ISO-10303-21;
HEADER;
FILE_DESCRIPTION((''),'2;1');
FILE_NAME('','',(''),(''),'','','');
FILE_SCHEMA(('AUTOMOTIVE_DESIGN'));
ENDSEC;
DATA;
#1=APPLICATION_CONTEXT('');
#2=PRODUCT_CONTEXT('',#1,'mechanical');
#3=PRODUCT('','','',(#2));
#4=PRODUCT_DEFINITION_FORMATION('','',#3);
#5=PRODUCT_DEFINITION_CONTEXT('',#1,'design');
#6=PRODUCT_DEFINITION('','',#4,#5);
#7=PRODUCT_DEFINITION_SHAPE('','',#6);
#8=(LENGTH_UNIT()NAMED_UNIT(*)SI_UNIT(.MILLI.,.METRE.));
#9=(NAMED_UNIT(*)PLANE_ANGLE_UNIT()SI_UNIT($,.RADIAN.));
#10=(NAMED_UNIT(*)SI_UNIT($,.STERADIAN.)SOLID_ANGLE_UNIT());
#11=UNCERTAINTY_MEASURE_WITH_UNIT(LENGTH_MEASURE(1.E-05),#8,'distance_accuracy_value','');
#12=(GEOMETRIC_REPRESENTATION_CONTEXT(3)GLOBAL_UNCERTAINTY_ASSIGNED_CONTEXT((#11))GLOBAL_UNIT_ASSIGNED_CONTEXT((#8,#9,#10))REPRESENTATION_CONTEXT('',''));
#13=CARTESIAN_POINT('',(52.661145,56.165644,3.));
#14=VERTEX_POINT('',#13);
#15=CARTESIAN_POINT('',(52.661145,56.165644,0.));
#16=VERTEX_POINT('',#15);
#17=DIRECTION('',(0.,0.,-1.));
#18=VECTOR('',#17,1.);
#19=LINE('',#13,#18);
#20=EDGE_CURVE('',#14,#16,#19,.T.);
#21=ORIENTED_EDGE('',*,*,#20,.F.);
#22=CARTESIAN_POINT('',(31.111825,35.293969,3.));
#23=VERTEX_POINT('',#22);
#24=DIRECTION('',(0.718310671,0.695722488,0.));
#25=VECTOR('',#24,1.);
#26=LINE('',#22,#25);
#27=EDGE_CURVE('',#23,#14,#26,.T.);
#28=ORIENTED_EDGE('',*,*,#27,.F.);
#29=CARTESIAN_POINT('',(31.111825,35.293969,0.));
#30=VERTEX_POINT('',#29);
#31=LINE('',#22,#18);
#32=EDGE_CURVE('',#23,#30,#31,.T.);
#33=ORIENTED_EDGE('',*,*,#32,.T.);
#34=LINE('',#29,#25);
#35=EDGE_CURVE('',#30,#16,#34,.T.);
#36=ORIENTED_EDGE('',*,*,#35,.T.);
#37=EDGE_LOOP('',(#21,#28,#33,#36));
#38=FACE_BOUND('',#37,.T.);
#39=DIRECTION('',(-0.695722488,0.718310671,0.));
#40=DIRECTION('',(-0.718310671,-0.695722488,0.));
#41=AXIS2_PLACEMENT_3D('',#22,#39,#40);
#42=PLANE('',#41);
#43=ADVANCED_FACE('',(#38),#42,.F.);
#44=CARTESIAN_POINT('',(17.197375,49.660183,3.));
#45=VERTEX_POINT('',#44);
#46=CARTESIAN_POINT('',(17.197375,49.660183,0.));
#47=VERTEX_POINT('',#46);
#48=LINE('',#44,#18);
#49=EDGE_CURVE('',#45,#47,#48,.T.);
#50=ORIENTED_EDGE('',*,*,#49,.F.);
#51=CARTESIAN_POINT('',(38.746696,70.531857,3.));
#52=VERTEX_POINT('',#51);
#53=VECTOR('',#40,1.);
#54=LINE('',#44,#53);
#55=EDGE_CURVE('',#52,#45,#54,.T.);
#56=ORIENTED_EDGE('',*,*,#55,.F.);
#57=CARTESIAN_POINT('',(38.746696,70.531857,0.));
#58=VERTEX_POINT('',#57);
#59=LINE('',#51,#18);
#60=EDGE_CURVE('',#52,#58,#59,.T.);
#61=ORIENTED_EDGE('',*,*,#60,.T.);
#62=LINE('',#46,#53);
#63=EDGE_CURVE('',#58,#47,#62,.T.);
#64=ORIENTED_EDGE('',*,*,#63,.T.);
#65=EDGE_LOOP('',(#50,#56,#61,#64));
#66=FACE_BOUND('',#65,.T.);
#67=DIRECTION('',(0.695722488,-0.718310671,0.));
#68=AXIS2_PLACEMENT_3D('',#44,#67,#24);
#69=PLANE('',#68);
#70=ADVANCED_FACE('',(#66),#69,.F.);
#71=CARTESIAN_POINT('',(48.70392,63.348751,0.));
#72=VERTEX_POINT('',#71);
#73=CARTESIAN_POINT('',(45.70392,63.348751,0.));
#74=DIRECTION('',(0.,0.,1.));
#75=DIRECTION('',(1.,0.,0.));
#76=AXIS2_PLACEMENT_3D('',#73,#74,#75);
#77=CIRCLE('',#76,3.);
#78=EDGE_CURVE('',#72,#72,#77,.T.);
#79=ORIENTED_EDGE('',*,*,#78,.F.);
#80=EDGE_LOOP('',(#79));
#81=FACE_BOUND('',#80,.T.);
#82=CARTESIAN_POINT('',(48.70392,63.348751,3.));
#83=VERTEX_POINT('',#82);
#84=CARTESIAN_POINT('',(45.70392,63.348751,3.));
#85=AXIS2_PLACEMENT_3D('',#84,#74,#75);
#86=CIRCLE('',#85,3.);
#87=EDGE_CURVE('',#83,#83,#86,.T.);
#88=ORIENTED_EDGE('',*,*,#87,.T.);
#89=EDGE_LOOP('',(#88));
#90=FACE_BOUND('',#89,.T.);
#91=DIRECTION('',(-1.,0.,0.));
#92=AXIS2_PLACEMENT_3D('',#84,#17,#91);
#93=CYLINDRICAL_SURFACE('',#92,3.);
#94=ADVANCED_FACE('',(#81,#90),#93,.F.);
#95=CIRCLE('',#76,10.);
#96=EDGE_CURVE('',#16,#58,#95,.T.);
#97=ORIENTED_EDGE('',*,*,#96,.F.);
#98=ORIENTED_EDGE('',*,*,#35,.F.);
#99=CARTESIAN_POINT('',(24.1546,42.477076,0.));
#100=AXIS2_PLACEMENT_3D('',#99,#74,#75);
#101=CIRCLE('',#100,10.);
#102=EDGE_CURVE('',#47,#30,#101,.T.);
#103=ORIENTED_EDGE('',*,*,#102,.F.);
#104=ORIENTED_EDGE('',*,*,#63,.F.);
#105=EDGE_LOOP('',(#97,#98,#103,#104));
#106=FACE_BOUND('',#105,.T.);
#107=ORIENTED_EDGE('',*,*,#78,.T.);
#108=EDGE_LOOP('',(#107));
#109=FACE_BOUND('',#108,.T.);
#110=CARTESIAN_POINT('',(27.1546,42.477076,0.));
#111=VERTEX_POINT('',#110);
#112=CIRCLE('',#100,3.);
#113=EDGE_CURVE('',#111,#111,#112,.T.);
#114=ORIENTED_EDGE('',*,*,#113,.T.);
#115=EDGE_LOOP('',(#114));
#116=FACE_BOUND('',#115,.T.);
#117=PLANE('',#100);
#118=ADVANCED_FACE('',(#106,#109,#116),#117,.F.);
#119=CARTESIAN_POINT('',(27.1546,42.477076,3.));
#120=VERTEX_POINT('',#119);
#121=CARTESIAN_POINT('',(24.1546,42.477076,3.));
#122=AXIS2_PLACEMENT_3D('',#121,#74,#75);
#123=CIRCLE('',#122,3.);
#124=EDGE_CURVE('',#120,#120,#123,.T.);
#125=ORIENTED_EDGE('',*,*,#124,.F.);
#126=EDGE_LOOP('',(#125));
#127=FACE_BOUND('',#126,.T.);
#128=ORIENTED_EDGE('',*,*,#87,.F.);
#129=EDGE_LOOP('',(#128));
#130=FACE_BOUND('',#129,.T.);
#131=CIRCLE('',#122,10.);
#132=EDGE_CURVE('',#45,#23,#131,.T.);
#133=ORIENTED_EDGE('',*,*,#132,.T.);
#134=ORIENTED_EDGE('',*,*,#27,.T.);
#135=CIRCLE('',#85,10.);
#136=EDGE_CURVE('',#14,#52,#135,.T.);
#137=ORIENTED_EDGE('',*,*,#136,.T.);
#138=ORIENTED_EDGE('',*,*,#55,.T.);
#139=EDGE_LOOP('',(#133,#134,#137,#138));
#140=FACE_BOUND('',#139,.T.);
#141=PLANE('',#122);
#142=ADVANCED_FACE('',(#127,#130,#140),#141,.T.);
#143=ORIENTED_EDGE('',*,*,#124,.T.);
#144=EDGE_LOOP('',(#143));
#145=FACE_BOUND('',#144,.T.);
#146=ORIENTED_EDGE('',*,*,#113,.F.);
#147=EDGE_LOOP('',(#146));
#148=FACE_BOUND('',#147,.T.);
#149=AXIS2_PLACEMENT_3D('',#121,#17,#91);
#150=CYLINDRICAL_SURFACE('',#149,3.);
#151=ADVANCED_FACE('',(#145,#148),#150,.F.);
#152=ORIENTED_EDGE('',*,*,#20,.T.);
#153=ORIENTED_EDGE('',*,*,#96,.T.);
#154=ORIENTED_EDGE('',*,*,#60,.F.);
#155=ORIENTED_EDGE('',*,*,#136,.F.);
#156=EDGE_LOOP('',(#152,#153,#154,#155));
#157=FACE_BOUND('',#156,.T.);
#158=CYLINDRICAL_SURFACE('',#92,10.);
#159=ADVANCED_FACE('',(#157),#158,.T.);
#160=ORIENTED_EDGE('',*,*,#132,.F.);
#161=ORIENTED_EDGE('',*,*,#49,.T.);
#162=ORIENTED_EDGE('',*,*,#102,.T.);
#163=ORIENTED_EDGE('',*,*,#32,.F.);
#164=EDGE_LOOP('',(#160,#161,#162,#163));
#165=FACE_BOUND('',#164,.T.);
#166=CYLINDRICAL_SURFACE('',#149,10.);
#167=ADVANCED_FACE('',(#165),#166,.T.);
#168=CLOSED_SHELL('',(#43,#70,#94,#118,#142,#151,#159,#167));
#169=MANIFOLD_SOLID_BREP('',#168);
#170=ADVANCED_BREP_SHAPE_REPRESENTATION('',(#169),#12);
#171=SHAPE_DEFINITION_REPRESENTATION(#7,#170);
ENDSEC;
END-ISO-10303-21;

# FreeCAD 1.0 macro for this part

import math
import FreeCAD as App
import Part
import Sketcher
from FreeCAD import Vector

doc = App.newDocument("Part")
body = doc.addObject("PartDesign::Body", "Body")

# Sketch on XY plane
sketch1 = body.newObject("Sketcher::SketchObject", "Sketch")
sketch1.AttachmentSupport = (doc.getObject("XY_Plane"), [""])
sketch1.MapMode = "FlatFace"
sketch1.addGeometry(Part.LineSegment(Vector(31.111825, 35.293969, 0), Vector(52.661145, 56.165644, 0)), False)
sketch1.addGeometry(Part.ArcOfCircle(Part.Circle(Vector(45.70392, 63.348751, 0), Vector(0, 0, 1), 10), math.radians(-45.915182), math.radians(134.084818)), False)
sketch1.addGeometry(Part.LineSegment(Vector(38.746696, 70.531857, 0), Vector(17.197375, 49.660183, 0)), False)
sketch1.addGeometry(Part.ArcOfCircle(Part.Circle(Vector(24.1546, 42.477076, 0), Vector(0, 0, 1), 10), math.radians(134.084818), math.radians(314.084818)), False)
sketch1.addGeometry(Part.Circle(Vector(24.1546, 42.477076, 0), Vector(0, 0, 1), 3), False)
sketch1.addGeometry(Part.Circle(Vector(45.70392, 63.348751, 0), Vector(0, 0, 1), 3), False)
sketch1.addConstraint(Sketcher.Constraint("Tangent", 0, 2, 1, 1))
sketch1.addConstraint(Sketcher.Constraint("Tangent", 1, 2, 2, 1))
sketch1.addConstraint(Sketcher.Constraint("Tangent", 2, 2, 3, 1))
sketch1.addConstraint(Sketcher.Constraint("Tangent", 3, 2, 0, 1))
sketch1.addConstraint(Sketcher.Constraint("Coincident", 4, 3, 3, 3))
sketch1.addConstraint(Sketcher.Constraint("Coincident", 5, 3, 1, 3))
sketch1.addConstraint(Sketcher.Constraint("Equal", 1, 3))
sketch1.addConstraint(Sketcher.Constraint("Equal", 4, 5))
sketch1.addConstraint(Sketcher.Constraint("Diameter", 4, 6.0))
sketch1.addConstraint(Sketcher.Constraint("Radius", 1, 10.0))
sketch1.addConstraint(Sketcher.Constraint("Distance", 0, 30.0))
sketch1.addConstraint(Sketcher.Constraint("DistanceX", -1, 1, 3, 3, 24.1546))
sketch1.addConstraint(Sketcher.Constraint("DistanceX", -1, 1, 1, 3, 45.70392))
sketch1.addConstraint(Sketcher.Constraint("DistanceY", -1, 1, 1, 3, 63.348751))
pad1 = body.newObject("PartDesign::Pad", "Pad")
pad1.Profile = sketch1
pad1.Length = 3

doc.recompute()
